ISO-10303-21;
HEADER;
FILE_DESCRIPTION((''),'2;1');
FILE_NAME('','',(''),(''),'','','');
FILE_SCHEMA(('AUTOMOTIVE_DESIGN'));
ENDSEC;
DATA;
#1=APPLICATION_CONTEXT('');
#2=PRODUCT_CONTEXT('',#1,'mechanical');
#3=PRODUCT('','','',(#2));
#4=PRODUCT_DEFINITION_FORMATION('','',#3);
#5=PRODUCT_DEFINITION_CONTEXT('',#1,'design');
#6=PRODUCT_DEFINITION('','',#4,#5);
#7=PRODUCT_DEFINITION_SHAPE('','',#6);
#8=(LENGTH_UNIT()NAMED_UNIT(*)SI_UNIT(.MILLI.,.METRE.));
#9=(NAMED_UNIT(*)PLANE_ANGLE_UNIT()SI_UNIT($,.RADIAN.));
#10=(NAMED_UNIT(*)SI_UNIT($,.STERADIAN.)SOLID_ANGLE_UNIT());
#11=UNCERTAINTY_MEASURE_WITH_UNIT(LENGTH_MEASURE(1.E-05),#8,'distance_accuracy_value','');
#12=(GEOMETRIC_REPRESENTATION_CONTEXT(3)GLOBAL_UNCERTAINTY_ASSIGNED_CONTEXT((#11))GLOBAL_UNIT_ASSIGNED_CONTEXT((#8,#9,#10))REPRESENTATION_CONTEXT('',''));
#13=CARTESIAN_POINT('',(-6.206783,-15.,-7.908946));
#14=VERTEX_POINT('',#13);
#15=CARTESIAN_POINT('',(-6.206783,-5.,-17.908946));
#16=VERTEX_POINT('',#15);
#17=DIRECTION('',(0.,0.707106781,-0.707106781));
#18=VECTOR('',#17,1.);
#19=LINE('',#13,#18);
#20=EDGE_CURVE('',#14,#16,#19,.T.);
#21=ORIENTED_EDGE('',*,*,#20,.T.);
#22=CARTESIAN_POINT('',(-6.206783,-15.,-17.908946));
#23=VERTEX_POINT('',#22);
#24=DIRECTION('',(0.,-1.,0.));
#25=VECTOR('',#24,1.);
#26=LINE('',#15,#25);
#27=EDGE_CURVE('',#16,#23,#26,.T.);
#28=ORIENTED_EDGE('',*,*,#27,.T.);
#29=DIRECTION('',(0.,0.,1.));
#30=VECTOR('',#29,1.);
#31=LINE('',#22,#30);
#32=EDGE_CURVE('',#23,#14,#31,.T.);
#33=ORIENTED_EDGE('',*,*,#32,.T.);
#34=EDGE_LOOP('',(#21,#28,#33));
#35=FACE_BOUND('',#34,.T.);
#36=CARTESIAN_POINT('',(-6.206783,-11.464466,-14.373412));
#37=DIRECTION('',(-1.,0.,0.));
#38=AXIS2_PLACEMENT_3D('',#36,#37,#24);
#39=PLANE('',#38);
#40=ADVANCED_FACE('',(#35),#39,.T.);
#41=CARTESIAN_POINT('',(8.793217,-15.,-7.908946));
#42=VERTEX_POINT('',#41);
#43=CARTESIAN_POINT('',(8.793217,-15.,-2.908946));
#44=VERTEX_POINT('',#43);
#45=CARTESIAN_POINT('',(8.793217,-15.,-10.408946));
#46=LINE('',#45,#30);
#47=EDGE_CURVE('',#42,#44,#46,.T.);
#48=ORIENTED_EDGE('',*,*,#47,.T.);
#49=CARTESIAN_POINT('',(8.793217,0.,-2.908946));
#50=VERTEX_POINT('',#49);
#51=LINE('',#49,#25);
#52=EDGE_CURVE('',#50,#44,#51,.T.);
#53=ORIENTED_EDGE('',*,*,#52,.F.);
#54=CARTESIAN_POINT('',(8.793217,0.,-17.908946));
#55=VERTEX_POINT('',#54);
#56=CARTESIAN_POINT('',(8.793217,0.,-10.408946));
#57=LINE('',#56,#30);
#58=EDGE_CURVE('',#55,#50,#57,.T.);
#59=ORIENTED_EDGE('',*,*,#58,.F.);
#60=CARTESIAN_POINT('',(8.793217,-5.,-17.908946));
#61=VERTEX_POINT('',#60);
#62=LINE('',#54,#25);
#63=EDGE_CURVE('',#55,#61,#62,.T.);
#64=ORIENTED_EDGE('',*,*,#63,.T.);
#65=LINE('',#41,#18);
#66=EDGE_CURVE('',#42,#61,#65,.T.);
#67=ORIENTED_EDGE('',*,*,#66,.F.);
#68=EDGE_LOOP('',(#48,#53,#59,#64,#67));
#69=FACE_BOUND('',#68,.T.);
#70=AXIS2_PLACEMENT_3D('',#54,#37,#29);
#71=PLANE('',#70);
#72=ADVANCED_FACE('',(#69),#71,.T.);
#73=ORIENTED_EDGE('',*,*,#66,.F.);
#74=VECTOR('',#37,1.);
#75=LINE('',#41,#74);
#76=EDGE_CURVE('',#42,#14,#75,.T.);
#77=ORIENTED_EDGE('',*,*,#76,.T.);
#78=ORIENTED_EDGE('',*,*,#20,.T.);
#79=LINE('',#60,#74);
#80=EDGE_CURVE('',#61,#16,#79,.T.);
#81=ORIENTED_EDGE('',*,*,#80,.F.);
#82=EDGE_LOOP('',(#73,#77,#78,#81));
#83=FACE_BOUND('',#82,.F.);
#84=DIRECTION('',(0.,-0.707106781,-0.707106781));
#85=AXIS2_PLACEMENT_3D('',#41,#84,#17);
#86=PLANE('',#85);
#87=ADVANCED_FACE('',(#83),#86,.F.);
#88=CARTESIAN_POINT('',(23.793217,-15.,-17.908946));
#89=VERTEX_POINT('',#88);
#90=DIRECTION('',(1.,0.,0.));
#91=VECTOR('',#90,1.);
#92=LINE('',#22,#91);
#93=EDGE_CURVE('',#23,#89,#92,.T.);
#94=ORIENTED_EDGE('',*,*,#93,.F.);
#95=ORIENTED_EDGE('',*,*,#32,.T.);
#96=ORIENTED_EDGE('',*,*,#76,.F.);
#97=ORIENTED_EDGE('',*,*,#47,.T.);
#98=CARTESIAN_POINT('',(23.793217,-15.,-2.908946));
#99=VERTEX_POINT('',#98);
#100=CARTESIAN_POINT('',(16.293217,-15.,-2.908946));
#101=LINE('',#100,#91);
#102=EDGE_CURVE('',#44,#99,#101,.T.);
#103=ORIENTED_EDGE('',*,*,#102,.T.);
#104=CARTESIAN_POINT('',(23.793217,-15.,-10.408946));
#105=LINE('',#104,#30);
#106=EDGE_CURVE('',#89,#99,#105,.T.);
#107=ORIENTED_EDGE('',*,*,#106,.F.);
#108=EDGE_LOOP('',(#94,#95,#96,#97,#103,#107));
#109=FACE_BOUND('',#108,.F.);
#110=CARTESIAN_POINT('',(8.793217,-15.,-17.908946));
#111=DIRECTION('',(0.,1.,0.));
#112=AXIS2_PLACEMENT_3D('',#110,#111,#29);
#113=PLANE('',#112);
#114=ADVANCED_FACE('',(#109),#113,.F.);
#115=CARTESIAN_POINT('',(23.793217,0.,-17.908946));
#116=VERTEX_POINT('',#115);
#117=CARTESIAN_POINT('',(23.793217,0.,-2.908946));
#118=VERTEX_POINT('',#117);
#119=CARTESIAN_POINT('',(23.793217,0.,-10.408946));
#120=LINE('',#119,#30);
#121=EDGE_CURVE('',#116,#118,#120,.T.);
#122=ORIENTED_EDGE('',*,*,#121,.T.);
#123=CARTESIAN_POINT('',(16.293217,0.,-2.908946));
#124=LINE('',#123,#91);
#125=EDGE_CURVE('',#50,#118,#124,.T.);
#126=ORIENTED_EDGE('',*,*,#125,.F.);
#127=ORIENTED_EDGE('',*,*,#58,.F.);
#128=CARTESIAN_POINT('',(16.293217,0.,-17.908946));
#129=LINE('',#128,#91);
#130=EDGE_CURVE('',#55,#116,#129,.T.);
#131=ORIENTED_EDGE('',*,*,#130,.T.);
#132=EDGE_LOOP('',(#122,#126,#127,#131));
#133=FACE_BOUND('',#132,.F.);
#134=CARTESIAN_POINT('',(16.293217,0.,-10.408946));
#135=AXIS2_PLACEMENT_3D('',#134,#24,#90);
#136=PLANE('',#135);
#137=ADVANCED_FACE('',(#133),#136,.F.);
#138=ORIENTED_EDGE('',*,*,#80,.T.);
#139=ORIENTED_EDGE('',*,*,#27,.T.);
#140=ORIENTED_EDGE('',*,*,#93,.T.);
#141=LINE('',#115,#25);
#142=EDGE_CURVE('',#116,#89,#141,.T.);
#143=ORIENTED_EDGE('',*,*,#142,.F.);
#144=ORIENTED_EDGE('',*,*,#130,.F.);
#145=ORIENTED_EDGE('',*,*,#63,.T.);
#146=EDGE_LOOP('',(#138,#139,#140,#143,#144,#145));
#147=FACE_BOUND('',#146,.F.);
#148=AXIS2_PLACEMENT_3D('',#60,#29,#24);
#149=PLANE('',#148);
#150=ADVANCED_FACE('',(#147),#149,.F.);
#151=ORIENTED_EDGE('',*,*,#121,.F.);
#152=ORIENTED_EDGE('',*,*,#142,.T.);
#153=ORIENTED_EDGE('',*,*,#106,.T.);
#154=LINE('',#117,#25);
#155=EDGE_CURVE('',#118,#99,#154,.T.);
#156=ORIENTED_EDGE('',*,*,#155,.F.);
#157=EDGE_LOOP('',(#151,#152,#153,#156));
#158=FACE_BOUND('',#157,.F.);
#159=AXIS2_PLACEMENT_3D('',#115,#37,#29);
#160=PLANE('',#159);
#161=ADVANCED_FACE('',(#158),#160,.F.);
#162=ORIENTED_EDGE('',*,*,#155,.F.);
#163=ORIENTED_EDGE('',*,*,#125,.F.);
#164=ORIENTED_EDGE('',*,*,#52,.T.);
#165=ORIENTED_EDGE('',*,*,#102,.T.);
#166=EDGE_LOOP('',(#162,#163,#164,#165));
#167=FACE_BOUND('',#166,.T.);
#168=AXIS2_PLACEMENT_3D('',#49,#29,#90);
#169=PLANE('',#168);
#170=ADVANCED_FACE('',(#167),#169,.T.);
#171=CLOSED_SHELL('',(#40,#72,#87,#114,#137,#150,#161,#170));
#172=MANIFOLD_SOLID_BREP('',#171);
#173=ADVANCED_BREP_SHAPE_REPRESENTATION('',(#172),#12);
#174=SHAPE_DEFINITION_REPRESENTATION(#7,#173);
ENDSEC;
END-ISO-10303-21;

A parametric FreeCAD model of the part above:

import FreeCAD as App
import Part
import Sketcher
from FreeCAD import Vector
Q = App.Units.Quantity


def add_polygon(sketch, points):
    """Adds a closed chain of lines whose ends are joined by coincident constraints."""
    first, n = sketch.GeometryCount, len(points)
    for a, b in zip(points, points[1:] + points[:1]):
        sketch.addGeometry(Part.LineSegment(App.Vector(*a, 0), App.Vector(*b, 0)), False)
    for i in range(n):
        sketch.addConstraint(Sketcher.Constraint("Coincident", first + i, 2, first + (i + 1) % n, 1))

doc = App.newDocument("Part")
body = doc.addObject("PartDesign::Body", "Body")

sketch1 = doc.addObject("Sketcher::SketchObject", "Sketch")
body.addObject(sketch1)
sketch1.AttachmentSupport = (doc.XZ_Plane, [""])
sketch1.MapMode = "FlatFace"
add_polygon(sketch1, [(9, -3), (9, -18), (24, -18), (24, -3)])
sketch1.addConstraint([
    Sketcher.Constraint("Vertical", 0),
    Sketcher.Constraint("Horizontal", 1),
    Sketcher.Constraint("Vertical", 2),
    Sketcher.Constraint("Horizontal", 3),
    Sketcher.Constraint("Equal", 3, 0),
    Sketcher.Constraint("DistanceX", 1, 1, 1, 2, Q("15 mm")),
    Sketcher.Constraint("DistanceX", -1, 1, 0, 2, Q("8.793217 mm")),
    Sketcher.Constraint("DistanceY", 0, 2, -1, 1, Q("17.908946 mm")),
])
pad1 = doc.addObject("PartDesign::Pad", "Pad")
body.addObject(pad1)
pad1.Profile = sketch1
pad1.Length = 15

sketch2 = doc.addObject("Sketcher::SketchObject", "Sketch001")
body.addObject(sketch2)
sketch2.AttachmentSupport = (doc.YZ_Plane, [""])
sketch2.MapMode = "FlatFace"
sketch2.AttachmentOffset = App.Placement(Vector(0, 0, 8.793217), App.Rotation())
add_polygon(sketch2, [(-15, -8), (-5, -18), (-15, -18)])
sketch2.addConstraint([
    Sketcher.Constraint("Horizontal", 1),
    Sketcher.Constraint("Vertical", 2),
    Sketcher.Constraint("Equal", 1, 2),
    Sketcher.Constraint("DistanceX", 1, 2, 1, 1, Q("10 mm")),
    Sketcher.Constraint("DistanceX", 0, 2, -1, 1, Q("5 mm")),
    Sketcher.Constraint("DistanceY", 0, 2, -1, 1, Q("17.908946 mm")),
])
pad2 = doc.addObject("PartDesign::Pad", "Pad001")
body.addObject(pad2)
pad2.Profile = sketch2
pad2.Length = 15
pad2.Reversed = True

doc.recompute()
